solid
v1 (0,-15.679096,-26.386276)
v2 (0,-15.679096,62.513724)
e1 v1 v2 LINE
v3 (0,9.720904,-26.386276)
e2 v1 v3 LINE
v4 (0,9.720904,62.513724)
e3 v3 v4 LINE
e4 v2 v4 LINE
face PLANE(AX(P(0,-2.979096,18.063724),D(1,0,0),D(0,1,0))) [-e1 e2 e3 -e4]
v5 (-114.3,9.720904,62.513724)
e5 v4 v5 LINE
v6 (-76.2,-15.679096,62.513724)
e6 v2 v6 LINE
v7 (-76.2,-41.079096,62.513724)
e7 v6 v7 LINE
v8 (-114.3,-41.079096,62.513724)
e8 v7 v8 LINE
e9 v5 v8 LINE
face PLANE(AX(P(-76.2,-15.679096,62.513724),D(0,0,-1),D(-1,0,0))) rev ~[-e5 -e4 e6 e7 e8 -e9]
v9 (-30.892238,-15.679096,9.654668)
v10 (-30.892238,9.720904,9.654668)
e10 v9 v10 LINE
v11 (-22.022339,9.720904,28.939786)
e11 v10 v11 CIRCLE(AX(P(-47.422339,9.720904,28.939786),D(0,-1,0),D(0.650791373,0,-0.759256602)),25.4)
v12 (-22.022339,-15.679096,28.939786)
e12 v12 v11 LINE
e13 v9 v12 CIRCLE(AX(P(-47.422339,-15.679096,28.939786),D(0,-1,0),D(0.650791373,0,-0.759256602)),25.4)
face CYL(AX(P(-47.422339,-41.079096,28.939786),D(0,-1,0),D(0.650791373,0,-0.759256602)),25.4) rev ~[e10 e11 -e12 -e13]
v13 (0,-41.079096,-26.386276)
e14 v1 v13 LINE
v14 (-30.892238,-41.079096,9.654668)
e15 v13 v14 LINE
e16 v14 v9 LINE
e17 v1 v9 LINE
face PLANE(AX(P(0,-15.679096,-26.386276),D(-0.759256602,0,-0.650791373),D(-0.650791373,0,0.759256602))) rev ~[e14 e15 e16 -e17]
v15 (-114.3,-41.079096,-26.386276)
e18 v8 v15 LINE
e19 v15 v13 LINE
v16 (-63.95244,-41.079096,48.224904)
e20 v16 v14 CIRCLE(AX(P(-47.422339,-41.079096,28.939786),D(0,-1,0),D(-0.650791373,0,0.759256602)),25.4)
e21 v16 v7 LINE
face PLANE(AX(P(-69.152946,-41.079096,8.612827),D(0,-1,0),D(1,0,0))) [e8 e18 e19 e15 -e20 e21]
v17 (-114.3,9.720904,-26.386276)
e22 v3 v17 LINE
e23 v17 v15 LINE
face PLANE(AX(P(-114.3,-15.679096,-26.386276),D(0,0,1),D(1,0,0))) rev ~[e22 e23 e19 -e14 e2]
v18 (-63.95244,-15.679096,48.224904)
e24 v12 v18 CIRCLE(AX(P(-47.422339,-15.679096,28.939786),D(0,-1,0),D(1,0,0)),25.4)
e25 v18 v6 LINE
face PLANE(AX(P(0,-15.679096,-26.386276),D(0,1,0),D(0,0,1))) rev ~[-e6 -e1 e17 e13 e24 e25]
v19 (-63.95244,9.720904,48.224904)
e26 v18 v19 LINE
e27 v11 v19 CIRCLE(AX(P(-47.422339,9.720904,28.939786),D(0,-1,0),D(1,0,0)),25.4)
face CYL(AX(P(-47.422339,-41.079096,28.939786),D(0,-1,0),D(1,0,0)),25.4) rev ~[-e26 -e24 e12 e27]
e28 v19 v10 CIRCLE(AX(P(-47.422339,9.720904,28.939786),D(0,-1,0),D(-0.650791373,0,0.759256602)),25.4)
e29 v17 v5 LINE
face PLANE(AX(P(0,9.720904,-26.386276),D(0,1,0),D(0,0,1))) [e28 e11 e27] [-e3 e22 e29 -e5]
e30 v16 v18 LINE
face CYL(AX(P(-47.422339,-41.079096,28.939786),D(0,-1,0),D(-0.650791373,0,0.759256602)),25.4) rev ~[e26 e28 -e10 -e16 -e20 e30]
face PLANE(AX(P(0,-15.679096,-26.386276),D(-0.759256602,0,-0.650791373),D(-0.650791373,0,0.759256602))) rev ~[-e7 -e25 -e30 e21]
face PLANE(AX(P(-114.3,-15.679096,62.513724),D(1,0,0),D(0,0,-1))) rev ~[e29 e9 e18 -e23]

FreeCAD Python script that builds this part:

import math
import FreeCAD as App
import Part
import Sketcher
Q = App.Units.Quantity


def add_polygon(sketch, points):
    """Adds a closed chain of lines whose ends are joined by coincident constraints."""
    first, n = sketch.GeometryCount, len(points)
    for a, b in zip(points, points[1:] + points[:1]):
        sketch.addGeometry(Part.LineSegment(App.Vector(*a, 0), App.Vector(*b, 0)), False)
    for i in range(n):
        sketch.addConstraint(Sketcher.Constraint("Coincident", first + i, 2, first + (i + 1) % n, 1))

doc = App.newDocument("Part")
params = doc.addObject("Spreadsheet::Sheet", "Params")
for row, (alias, value) in enumerate([
    ("sketch1_width", "1 in"),
    ("sketch1_height", "3.5 in"),
    ("pad1_length", "4.5 in"),
    ("sketch2_width", "1.5 in"),
    ("sketch2_width2", "4.5 in"),
    ("sketch2_height", "3.5 in"),
    ("pad2_length", "1 in"),
    ("sketch3_radius", "1 in"),
], start=1):
    params.set(f"A{row}", alias)
    params.set(f"B{row}", "=" + value)
    params.setAlias(f"B{row}", alias)

body = doc.addObject("PartDesign::Body", "Body")

# Sketch on YZ plane
sketch1 = body.newObject("Sketcher::SketchObject", "Sketch")
sketch1.AttachmentSupport = (doc.getObject("YZ_Plane"), [""])
sketch1.MapMode = "FlatFace"
add_polygon(sketch1, [(-16, 63), (-16, -26), (10, -26), (10, 63)])  # lines 0-3
sketch1.addConstraint([
    Sketcher.Constraint("Vertical", 0),
    Sketcher.Constraint("Horizontal", 1),
    Sketcher.Constraint("Vertical", 2),
    Sketcher.Constraint("Horizontal", 3),
    Sketcher.Constraint("DistanceX", 1, 1, 1, 2, Q("1 in")),
    Sketcher.Constraint("DistanceY", 0, 2, 0, 1, Q("3.5 in")),
    Sketcher.Constraint("DistanceX", 0, 2, -1, 1, Q("15.679096 mm")),
    Sketcher.Constraint("DistanceY", 0, 2, -1, 1, Q("26.386276 mm")),
])
sketch1.setExpression("Constraints[8]", "Params.sketch1_width")
sketch1.setExpression("Constraints[9]", "Params.sketch1_height")
pad1 = body.newObject("PartDesign::Pad", "Pad")
pad1.Profile = sketch1
pad1.setExpression("Length", "Params.pad1_length")
pad1.Reversed = True

# Sketch on XZ plane
sketch2 = body.newObject("Sketcher::SketchObject", "Sketch001")
sketch2.AttachmentSupport = (doc.getObject("XZ_Plane"), [""])
sketch2.MapMode = "FlatFace"
sketch2.AttachmentOffset = App.Placement(App.Vector(0, 0, 15.679096), App.Rotation())
add_polygon(sketch2, [(-76, 63), (-114, 63), (-114, -26), (0, -26)])  # lines 0-3
sketch2.addConstraint([
    Sketcher.Constraint("Horizontal", 0),
    Sketcher.Constraint("Vertical", 1),
    Sketcher.Constraint("Horizontal", 2),
    Sketcher.Constraint("PointOnObject", 2, 2, -2),
    Sketcher.Constraint("DistanceX", 0, 2, 0, 1, Q("1.5 in")),
    Sketcher.Constraint("DistanceX", 2, 1, 2, 2, Q("4.5 in")),
    Sketcher.Constraint("DistanceY", 1, 2, 1, 1, Q("3.5 in")),
    Sketcher.Constraint("DistanceY", -1, 1, 0, 2, Q("62.513724 mm")),
])
sketch2.setExpression("Constraints[8]", "Params.sketch2_width")
sketch2.setExpression("Constraints[9]", "Params.sketch2_width2")
sketch2.setExpression("Constraints[10]", "Params.sketch2_height")
pad2 = body.newObject("PartDesign::Pad", "Pad001")
pad2.Profile = sketch2
pad2.setExpression("Length", "Params.pad2_length")

# Sketch on XZ plane
sketch3 = body.newObject("Sketcher::SketchObject", "Sketch002")
sketch3.AttachmentSupport = (doc.getObject("XZ_Plane"), [""])
sketch3.MapMode = "FlatFace"
sketch3.AttachmentOffset = App.Placement(App.Vector(0, 0, 41.079096), App.Rotation())
sketch3.addGeometry([
    Part.ArcOfCircle(Part.Circle(App.Vector(-47, 29, 0), App.Vector(0, 0, 1), 25), math.radians(131), math.radians(311)),
    Part.ArcOfCircle(Part.Circle(App.Vector(-47, 29, 0), App.Vector(0, 0, 1), 25), math.radians(-49), math.radians(0)),
    Part.ArcOfCircle(Part.Circle(App.Vector(-47, 29, 0), App.Vector(0, 0, 1), 25), math.radians(0), math.radians(131)),
], False)
sketch3.addConstraint([
    Sketcher.Constraint("Tangent", 0, 2, 1, 1),
    Sketcher.Constraint("Tangent", 1, 2, 2, 1),
    Sketcher.Constraint("Tangent", 2, 2, 0, 1),
    Sketcher.Constraint("Horizontal", 2, 3, 1, 2),
    Sketcher.Constraint("Radius", 0, Q("1 in")),
    Sketcher.Constraint("DistanceX", 0, 3, 0, 2, Q("16.530101 mm")),
    Sketcher.Constraint("DistanceX", 2, 2, 1, 3, Q("16.530101 mm")),
    Sketcher.Constraint("DistanceX", 0, 3, -1, 1, Q("47.422339 mm")),
    Sketcher.Constraint("DistanceY", -1, 1, 0, 2, Q("9.654668 mm")),
])
sketch3.setExpression("Constraints[4]", "Params.sketch3_radius")
pocket1 = body.newObject("PartDesign::Pocket", "Pocket")
pocket1.Profile = sketch3
pocket1.Type = "ThroughAll"

doc.recompute()
